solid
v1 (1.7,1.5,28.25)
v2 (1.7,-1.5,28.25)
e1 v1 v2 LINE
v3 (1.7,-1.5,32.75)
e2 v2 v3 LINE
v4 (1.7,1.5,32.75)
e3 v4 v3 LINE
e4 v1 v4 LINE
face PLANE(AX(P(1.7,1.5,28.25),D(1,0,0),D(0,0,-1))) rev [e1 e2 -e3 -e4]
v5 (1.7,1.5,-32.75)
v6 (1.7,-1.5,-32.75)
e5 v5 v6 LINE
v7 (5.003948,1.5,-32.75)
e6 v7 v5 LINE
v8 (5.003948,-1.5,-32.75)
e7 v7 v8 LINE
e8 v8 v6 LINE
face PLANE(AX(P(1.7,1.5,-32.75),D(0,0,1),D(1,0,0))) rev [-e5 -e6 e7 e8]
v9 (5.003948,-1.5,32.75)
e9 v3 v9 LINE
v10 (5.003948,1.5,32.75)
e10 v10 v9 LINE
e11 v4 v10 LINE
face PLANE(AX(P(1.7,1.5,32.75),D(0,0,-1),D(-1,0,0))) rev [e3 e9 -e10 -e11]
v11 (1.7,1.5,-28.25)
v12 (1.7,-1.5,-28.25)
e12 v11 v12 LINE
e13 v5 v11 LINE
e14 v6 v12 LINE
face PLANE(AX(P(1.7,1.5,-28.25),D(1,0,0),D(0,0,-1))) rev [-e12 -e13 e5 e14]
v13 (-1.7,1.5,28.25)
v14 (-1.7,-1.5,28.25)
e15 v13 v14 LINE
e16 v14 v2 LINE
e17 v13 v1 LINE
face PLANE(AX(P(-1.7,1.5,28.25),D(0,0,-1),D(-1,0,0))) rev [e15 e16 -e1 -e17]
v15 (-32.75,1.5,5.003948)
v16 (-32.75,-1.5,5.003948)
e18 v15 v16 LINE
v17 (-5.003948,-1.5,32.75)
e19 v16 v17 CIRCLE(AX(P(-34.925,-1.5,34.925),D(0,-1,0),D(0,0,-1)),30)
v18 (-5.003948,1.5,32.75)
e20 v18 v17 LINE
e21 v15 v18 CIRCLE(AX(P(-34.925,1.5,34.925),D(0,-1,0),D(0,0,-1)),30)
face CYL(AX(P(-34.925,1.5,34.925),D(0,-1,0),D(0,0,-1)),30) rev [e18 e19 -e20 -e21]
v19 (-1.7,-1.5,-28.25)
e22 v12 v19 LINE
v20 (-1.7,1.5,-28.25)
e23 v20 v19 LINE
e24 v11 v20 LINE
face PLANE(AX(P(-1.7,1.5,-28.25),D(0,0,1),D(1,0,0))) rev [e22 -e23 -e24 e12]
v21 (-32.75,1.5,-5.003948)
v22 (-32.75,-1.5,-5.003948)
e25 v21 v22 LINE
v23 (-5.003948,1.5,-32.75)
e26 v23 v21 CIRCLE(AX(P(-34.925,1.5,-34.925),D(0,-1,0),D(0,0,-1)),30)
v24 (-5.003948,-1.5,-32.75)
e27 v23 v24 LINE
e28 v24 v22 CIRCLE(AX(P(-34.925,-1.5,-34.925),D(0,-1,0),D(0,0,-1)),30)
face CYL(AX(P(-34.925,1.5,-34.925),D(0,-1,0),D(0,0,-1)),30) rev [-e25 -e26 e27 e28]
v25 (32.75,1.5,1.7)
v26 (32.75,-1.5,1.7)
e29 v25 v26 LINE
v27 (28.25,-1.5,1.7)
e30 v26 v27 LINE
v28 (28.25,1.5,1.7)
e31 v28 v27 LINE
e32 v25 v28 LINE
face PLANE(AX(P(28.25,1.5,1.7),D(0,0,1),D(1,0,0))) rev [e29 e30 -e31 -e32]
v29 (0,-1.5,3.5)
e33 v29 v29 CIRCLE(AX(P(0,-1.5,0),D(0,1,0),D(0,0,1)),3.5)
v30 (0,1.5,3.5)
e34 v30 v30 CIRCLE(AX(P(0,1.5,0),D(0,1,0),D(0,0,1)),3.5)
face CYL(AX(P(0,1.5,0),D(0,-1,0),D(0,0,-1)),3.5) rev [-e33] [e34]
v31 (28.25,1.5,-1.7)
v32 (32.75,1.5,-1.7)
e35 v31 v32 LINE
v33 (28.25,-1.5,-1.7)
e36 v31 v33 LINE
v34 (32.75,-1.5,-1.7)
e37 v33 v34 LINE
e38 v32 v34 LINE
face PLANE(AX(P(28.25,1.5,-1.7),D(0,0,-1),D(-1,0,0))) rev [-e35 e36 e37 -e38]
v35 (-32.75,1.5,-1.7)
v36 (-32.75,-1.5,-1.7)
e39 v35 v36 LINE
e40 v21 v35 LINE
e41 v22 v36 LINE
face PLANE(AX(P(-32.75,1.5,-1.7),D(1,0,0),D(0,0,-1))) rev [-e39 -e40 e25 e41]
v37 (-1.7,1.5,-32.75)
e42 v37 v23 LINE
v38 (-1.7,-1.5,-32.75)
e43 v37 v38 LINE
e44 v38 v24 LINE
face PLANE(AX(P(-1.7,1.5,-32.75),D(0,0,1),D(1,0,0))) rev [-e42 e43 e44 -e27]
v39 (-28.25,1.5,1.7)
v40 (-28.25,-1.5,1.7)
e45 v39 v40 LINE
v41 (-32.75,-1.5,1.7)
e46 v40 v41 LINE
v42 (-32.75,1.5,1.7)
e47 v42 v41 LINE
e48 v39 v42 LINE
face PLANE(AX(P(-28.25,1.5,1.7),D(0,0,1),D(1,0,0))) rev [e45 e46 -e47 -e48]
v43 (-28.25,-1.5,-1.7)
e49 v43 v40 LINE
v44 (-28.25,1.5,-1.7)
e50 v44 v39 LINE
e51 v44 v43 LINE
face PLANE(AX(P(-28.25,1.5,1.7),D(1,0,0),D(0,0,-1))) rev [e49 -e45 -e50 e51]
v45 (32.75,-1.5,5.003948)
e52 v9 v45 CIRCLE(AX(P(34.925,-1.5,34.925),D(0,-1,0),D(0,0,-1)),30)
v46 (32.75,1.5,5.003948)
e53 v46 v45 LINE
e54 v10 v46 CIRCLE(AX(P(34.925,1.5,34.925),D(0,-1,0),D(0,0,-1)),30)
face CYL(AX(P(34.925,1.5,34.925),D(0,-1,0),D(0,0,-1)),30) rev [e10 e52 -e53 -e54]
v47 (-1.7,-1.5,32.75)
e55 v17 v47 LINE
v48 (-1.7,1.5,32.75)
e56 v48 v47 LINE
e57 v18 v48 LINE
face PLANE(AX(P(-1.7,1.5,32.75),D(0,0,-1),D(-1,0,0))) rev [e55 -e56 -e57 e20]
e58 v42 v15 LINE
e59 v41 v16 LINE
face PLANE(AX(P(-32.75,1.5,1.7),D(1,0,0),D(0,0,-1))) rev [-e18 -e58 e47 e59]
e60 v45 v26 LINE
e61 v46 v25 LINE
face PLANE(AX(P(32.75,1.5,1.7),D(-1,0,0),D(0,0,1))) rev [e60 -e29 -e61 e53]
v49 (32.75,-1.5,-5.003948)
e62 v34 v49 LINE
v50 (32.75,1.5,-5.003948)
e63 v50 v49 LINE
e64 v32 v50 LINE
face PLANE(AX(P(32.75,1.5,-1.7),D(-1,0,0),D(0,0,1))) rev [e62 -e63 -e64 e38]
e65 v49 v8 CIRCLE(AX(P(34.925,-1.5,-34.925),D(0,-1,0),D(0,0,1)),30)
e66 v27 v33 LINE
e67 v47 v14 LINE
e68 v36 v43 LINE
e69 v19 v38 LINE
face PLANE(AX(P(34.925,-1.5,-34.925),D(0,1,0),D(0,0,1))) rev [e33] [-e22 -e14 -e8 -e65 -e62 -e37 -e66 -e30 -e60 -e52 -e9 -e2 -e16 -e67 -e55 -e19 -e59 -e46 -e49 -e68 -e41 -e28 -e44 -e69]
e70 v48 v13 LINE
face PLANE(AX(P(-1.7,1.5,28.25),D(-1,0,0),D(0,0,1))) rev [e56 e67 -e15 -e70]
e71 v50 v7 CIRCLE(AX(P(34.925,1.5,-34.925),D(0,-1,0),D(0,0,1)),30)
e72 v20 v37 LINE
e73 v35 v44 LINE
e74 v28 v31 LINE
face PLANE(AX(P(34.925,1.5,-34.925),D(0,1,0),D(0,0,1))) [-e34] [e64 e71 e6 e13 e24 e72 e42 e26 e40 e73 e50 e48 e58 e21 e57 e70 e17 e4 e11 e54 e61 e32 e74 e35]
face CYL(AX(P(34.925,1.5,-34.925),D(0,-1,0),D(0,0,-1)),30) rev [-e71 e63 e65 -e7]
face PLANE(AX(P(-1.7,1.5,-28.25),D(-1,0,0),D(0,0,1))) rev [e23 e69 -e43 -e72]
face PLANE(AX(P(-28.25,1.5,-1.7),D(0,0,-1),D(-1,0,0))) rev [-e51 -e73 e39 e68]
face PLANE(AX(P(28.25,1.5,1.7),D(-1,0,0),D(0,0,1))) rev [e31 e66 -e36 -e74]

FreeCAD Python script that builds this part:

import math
import FreeCAD as App
import Part
import Sketcher
from FreeCAD import Vector

doc = App.newDocument("Part")
body = doc.addObject("PartDesign::Body", "Body")

# Sketch on XZ plane
sketch1 = doc.addObject("Sketcher::SketchObject", "Sketch")
body.addObject(sketch1)
sketch1.AttachmentSupport = (doc.XZ_Plane, [""])
sketch1.MapMode = "FlatFace"
sketch1.addGeometry(Part.LineSegment(Vector(1.7, -28.2, 0), Vector(-1.7, -28.2, 0)), False)
sketch1.addGeometry(Part.LineSegment(Vector(-1.7, -28.2, 0), Vector(-1.7, -32.8, 0)), False)
sketch1.addGeometry(Part.LineSegment(Vector(-1.7, -32.8, 0), Vector(-5, -32.8, 0)), False)
sketch1.addGeometry(Part.ArcOfCircle(Part.Circle(Vector(-34.9, -34.9, 0), Vector(0, 0, 1), 30), math.radians(4), math.radians(86)), False)
sketch1.addGeometry(Part.LineSegment(Vector(-32.8, -5, 0), Vector(-32.8, -1.7, 0)), False)
sketch1.addGeometry(Part.LineSegment(Vector(-32.8, -1.7, 0), Vector(-28.2, -1.7, 0)), False)
sketch1.addGeometry(Part.LineSegment(Vector(-28.2, -1.7, 0), Vector(-28.2, 1.7, 0)), False)
sketch1.addGeometry(Part.LineSegment(Vector(-28.2, 1.7, 0), Vector(-32.8, 1.7, 0)), False)
sketch1.addGeometry(Part.LineSegment(Vector(-32.8, 1.7, 0), Vector(-32.8, 5, 0)), False)
sketch1.addGeometry(Part.ArcOfCircle(Part.Circle(Vector(-34.9, 34.9, 0), Vector(0, 0, 1), 30), math.radians(-86), math.radians(-4)), False)
sketch1.addGeometry(Part.LineSegment(Vector(-5, 32.8, 0), Vector(-1.7, 32.8, 0)), False)
sketch1.addGeometry(Part.LineSegment(Vector(-1.7, 32.8, 0), Vector(-1.7, 28.2, 0)), False)
sketch1.addGeometry(Part.LineSegment(Vector(-1.7, 28.2, 0), Vector(1.7, 28.2, 0)), False)
sketch1.addGeometry(Part.LineSegment(Vector(1.7, 28.2, 0), Vector(1.7, 32.8, 0)), False)
sketch1.addGeometry(Part.LineSegment(Vector(1.7, 32.8, 0), Vector(5, 32.8, 0)), False)
sketch1.addGeometry(Part.ArcOfCircle(Part.Circle(Vector(34.9, 34.9, 0), Vector(0, 0, 1), 30), math.radians(-176), math.radians(-94)), False)
sketch1.addGeometry(Part.LineSegment(Vector(32.8, 5, 0), Vector(32.8, 1.7, 0)), False)
sketch1.addGeometry(Part.LineSegment(Vector(32.8, 1.7, 0), Vector(28.2, 1.7, 0)), False)
sketch1.addGeometry(Part.LineSegment(Vector(28.2, 1.7, 0), Vector(28.2, -1.7, 0)), False)
sketch1.addGeometry(Part.LineSegment(Vector(28.2, -1.7, 0), Vector(32.8, -1.7, 0)), False)
sketch1.addGeometry(Part.LineSegment(Vector(32.8, -1.7, 0), Vector(32.8, -5, 0)), False)
sketch1.addGeometry(Part.ArcOfCircle(Part.Circle(Vector(34.9, -34.9, 0), Vector(0, 0, 1), 30), math.radians(94), math.radians(176)), False)
sketch1.addGeometry(Part.LineSegment(Vector(5, -32.8, 0), Vector(1.7, -32.8, 0)), False)
sketch1.addGeometry(Part.LineSegment(Vector(1.7, -32.8, 0), Vector(1.7, -28.2, 0)), False)
sketch1.addGeometry(Part.Circle(Vector(0, 0, 0), Vector(0, 0, 1), 3.5), False)
sketch1.addConstraint(Sketcher.Constraint("Coincident", 0, 2, 1, 1))
sketch1.addConstraint(Sketcher.Constraint("Coincident", 1, 2, 2, 1))
sketch1.addConstraint(Sketcher.Constraint("Coincident", 2, 2, 3, 1))
sketch1.addConstraint(Sketcher.Constraint("Coincident", 3, 2, 4, 1))
sketch1.addConstraint(Sketcher.Constraint("Coincident", 4, 2, 5, 1))
sketch1.addConstraint(Sketcher.Constraint("Coincident", 5, 2, 6, 1))
sketch1.addConstraint(Sketcher.Constraint("Coincident", 6, 2, 7, 1))
sketch1.addConstraint(Sketcher.Constraint("Coincident", 7, 2, 8, 1))
sketch1.addConstraint(Sketcher.Constraint("Coincident", 8, 2, 9, 1))
sketch1.addConstraint(Sketcher.Constraint("Coincident", 9, 2, 10, 1))
sketch1.addConstraint(Sketcher.Constraint("Coincident", 10, 2, 11, 1))
sketch1.addConstraint(Sketcher.Constraint("Coincident", 11, 2, 12, 1))
sketch1.addConstraint(Sketcher.Constraint("Coincident", 12, 2, 13, 1))
sketch1.addConstraint(Sketcher.Constraint("Coincident", 13, 2, 14, 1))
sketch1.addConstraint(Sketcher.Constraint("Coincident", 14, 2, 15, 1))
sketch1.addConstraint(Sketcher.Constraint("Coincident", 15, 2, 16, 1))
sketch1.addConstraint(Sketcher.Constraint("Coincident", 16, 2, 17, 1))
sketch1.addConstraint(Sketcher.Constraint("Coincident", 17, 2, 18, 1))
sketch1.addConstraint(Sketcher.Constraint("Coincident", 18, 2, 19, 1))
sketch1.addConstraint(Sketcher.Constraint("Coincident", 19, 2, 20, 1))
sketch1.addConstraint(Sketcher.Constraint("Coincident", 20, 2, 21, 1))
sketch1.addConstraint(Sketcher.Constraint("Coincident", 21, 2, 22, 1))
sketch1.addConstraint(Sketcher.Constraint("Coincident", 22, 2, 23, 1))
sketch1.addConstraint(Sketcher.Constraint("Coincident", 23, 2, 0, 1))
sketch1.addConstraint(Sketcher.Constraint("Horizontal", 0))
sketch1.addConstraint(Sketcher.Constraint("Vertical", 1))
sketch1.addConstraint(Sketcher.Constraint("Horizontal", 2))
sketch1.addConstraint(Sketcher.Constraint("Vertical", 4))
sketch1.addConstraint(Sketcher.Constraint("Horizontal", 5))
sketch1.addConstraint(Sketcher.Constraint("Vertical", 6))
sketch1.addConstraint(Sketcher.Constraint("Horizontal", 7))
sketch1.addConstraint(Sketcher.Constraint("Vertical", 8))
sketch1.addConstraint(Sketcher.Constraint("Horizontal", 10))
sketch1.addConstraint(Sketcher.Constraint("Vertical", 11))
sketch1.addConstraint(Sketcher.Constraint("Horizontal", 12))
sketch1.addConstraint(Sketcher.Constraint("Vertical", 13))
sketch1.addConstraint(Sketcher.Constraint("Horizontal", 14))
sketch1.addConstraint(Sketcher.Constraint("Vertical", 16))
sketch1.addConstraint(Sketcher.Constraint("Horizontal", 17))
sketch1.addConstraint(Sketcher.Constraint("Vertical", 18))
sketch1.addConstraint(Sketcher.Constraint("Horizontal", 19))
sketch1.addConstraint(Sketcher.Constraint("Vertical", 20))
sketch1.addConstraint(Sketcher.Constraint("Horizontal", 22))
sketch1.addConstraint(Sketcher.Constraint("Vertical", 23))
sketch1.addConstraint(Sketcher.Constraint("Coincident", 24, 3, -1, 1))
sketch1.addConstraint(Sketcher.Constraint("Equal", 3, 9))
sketch1.addConstraint(Sketcher.Constraint("Equal", 9, 15))
sketch1.addConstraint(Sketcher.Constraint("Equal", 15, 21))
sketch1.addConstraint(Sketcher.Constraint("Symmetric", 3, 3, 15, 3, -1, 1))
sketch1.addConstraint(Sketcher.Constraint("Symmetric", 9, 3, 21, 3, -1, 1))
sketch1.addConstraint(Sketcher.Constraint("Symmetric", 0, 2, 12, 2, -1, 1))
sketch1.addConstraint(Sketcher.Constraint("Symmetric", 4, 2, 16, 2, -1, 1))
sketch1.addConstraint(Sketcher.Constraint("Symmetric", 6, 2, 18, 2, -1, 1))
sketch1.addConstraint(Sketcher.Constraint("Symmetric", 10, 2, 22, 2, -1, 1))
sketch1.addConstraint(Sketcher.Constraint("Symmetric", 9, 3, 15, 3, -2))
sketch1.addConstraint(Sketcher.Constraint("Symmetric", 10, 2, 13, 2, -2))
sketch1.addConstraint(Sketcher.Constraint("Symmetric", 7, 2, 16, 2, -2))
sketch1.addConstraint(Sketcher.Constraint("Horizontal", 3, 2, 20, 2))
sketch1.addConstraint(Sketcher.Constraint("Horizontal", 2, 2, 21, 2))
sketch1.addConstraint(Sketcher.Constraint("Equal", 19, 1))
sketch1.addConstraint(Sketcher.Constraint("Equal", 22, 4))
sketch1.addConstraint(Sketcher.Constraint("Equal", 12, 6))
sketch1.addConstraint(Sketcher.Constraint("Diameter", 24, 7.0))
sketch1.addConstraint(Sketcher.Constraint("Radius", 3, 30.0))
sketch1.addConstraint(Sketcher.Constraint("DistanceX", 0, 2, 0, 1, 3.4))
sketch1.addConstraint(Sketcher.Constraint("DistanceX", 5, 1, 5, 2, 4.5))
sketch1.addConstraint(Sketcher.Constraint("DistanceY", 0, 2, -1, 1, 28.25))
sketch1.addConstraint(Sketcher.Constraint("DistanceX", 3, 2, -1, 1, 32.75))
sketch1.addConstraint(Sketcher.Constraint("DistanceY", 3, 3, 9, 3, 69.85))
pad1 = doc.addObject("PartDesign::Pad", "Pad")
body.addObject(pad1)
pad1.Profile = sketch1
pad1.Length = 3
pad1.Midplane = True

doc.recompute()
